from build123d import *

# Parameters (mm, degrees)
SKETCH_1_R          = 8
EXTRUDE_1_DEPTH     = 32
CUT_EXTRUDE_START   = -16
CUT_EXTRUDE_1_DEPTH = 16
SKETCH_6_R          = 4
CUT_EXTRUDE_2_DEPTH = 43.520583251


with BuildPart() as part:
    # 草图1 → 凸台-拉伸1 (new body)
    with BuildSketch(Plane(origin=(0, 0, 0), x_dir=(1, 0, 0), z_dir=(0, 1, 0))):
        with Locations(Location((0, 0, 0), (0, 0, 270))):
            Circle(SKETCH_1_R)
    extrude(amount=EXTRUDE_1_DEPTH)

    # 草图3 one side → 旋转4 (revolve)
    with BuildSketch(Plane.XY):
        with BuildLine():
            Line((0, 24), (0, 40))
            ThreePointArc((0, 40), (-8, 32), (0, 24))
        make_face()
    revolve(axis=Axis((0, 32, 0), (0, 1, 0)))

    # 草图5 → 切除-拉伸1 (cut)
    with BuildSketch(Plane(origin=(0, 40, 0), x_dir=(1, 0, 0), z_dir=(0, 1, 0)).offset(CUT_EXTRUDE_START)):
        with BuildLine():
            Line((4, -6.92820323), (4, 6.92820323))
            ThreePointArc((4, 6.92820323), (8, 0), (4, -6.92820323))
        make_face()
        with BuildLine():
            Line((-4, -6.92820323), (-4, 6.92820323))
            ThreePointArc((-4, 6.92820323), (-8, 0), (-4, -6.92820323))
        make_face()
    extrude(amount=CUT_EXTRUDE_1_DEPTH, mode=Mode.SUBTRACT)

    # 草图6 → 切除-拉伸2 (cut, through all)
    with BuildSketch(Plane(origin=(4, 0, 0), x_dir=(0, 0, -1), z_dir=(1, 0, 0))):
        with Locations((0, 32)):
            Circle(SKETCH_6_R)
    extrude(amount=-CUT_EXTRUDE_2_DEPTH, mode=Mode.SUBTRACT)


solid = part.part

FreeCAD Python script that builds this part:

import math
import FreeCAD as App
import Part
import Sketcher

doc = App.newDocument("Part")
body = doc.addObject("PartDesign::Body", "Body")

# Sketch on XZ plane
sketch1 = body.newObject("Sketcher::SketchObject", "Sketch")
sketch1.AttachmentSupport = (doc.getObject("XZ_Plane"), [""])
sketch1.MapMode = "FlatFace"
sketch1.addGeometry(Part.Circle(App.Vector(0, 0, 0), App.Vector(0, 0, 1), 8), False)
sketch1.addConstraint(Sketcher.Constraint("Coincident", 0, 3, -1, 1))
sketch1.addConstraint(Sketcher.Constraint("Diameter", 0, 16.0))
pad1 = body.newObject("PartDesign::Pad", "Pad")
pad1.Profile = sketch1
pad1.Length = 32
pad1.Reversed = True

# Sketch on XY plane
sketch2 = body.newObject("Sketcher::SketchObject", "Sketch001")
sketch2.AttachmentSupport = (doc.getObject("XY_Plane"), [""])
sketch2.MapMode = "FlatFace"
sketch2.addGeometry(Part.LineSegment(App.Vector(0, 24, 0), App.Vector(0, 40, 0)), False)
sketch2.addGeometry(Part.ArcOfCircle(Part.Circle(App.Vector(0, 32, 0), App.Vector(0, 0, 1), 8), math.radians(90), math.radians(270)), False)
sketch2.addConstraint(Sketcher.Constraint("Coincident", 0, 1, 1, 2))
sketch2.addConstraint(Sketcher.Constraint("Coincident", 1, 1, 0, 2))
sketch2.addConstraint(Sketcher.Constraint("Vertical", 0))
sketch2.addConstraint(Sketcher.Constraint("PointOnObject", 1, 3, -2))
sketch2.addConstraint(Sketcher.Constraint("PointOnObject", 0, 1, -2))
sketch2.addConstraint(Sketcher.Constraint("Radius", 1, 8.0))
sketch2.addConstraint(Sketcher.Constraint("DistanceY", -1, 1, 1, 3, 32.0))
revolution = body.newObject("PartDesign::Revolution", "Revolution")
revolution.Profile = sketch2
revolution.ReferenceAxis = (sketch2, ["V_Axis"])
revolution.Angle = 360

# Sketch on XZ plane
sketch3 = body.newObject("Sketcher::SketchObject", "Sketch002")
sketch3.AttachmentSupport = (doc.getObject("XZ_Plane"), [""])
sketch3.MapMode = "FlatFace"
sketch3.AttachmentOffset = App.Placement(App.Vector(0, 0, -24), App.Rotation())
sketch3.addGeometry(Part.LineSegment(App.Vector(4, -6.928203, 0), App.Vector(4, 6.928203, 0)), False)
sketch3.addGeometry(Part.ArcOfCircle(Part.Circle(App.Vector(0, 0, 0), App.Vector(0, 0, 1), 8), math.radians(-60), math.radians(60)), False)
sketch3.addGeometry(Part.LineSegment(App.Vector(-4, 6.928203, 0), App.Vector(-4, -6.928203, 0)), False)
sketch3.addGeometry(Part.ArcOfCircle(Part.Circle(App.Vector(0, 0, 0), App.Vector(0, 0, 1), 8), math.radians(120), math.radians(240)), False)
sketch3.addConstraint(Sketcher.Constraint("Coincident", 0, 1, 1, 1))
sketch3.addConstraint(Sketcher.Constraint("Coincident", 1, 2, 0, 2))
sketch3.addConstraint(Sketcher.Constraint("Coincident", 2, 1, 3, 1))
sketch3.addConstraint(Sketcher.Constraint("Coincident", 3, 2, 2, 2))
sketch3.addConstraint(Sketcher.Constraint("Vertical", 0))
sketch3.addConstraint(Sketcher.Constraint("Vertical", 2))
sketch3.addConstraint(Sketcher.Constraint("Coincident", 1, 3, -1, 1))
sketch3.addConstraint(Sketcher.Constraint("Coincident", 3, 3, -1, 1))
sketch3.addConstraint(Sketcher.Constraint("Equal", 1, 3))
sketch3.addConstraint(Sketcher.Constraint("Horizontal", 1, 2, 2, 1))
sketch3.addConstraint(Sketcher.Constraint("Radius", 1, 8.0))
sketch3.addConstraint(Sketcher.Constraint("DistanceX", -1, 1, 0, 1, 4.0))
pocket1 = body.newObject("PartDesign::Pocket", "Pocket")
pocket1.Profile = sketch3
pocket1.Length = 16

# Sketch on YZ plane
sketch4 = body.newObject("Sketcher::SketchObject", "Sketch003")
sketch4.AttachmentSupport = (doc.getObject("YZ_Plane"), [""])
sketch4.MapMode = "FlatFace"
sketch4.AttachmentOffset = App.Placement(App.Vector(0, 0, 4), App.Rotation())
sketch4.addGeometry(Part.Circle(App.Vector(32, 0, 0), App.Vector(0, 0, 1), 4), False)
sketch4.addConstraint(Sketcher.Constraint("PointOnObject", 0, 3, -1))
sketch4.addConstraint(Sketcher.Constraint("Diameter", 0, 8.0))
sketch4.addConstraint(Sketcher.Constraint("DistanceX", -1, 1, 0, 3, 32.0))
pocket2 = body.newObject("PartDesign::Pocket", "Pocket001")
pocket2.Profile = sketch4
pocket2.Type = "ThroughAll"

doc.recompute()
